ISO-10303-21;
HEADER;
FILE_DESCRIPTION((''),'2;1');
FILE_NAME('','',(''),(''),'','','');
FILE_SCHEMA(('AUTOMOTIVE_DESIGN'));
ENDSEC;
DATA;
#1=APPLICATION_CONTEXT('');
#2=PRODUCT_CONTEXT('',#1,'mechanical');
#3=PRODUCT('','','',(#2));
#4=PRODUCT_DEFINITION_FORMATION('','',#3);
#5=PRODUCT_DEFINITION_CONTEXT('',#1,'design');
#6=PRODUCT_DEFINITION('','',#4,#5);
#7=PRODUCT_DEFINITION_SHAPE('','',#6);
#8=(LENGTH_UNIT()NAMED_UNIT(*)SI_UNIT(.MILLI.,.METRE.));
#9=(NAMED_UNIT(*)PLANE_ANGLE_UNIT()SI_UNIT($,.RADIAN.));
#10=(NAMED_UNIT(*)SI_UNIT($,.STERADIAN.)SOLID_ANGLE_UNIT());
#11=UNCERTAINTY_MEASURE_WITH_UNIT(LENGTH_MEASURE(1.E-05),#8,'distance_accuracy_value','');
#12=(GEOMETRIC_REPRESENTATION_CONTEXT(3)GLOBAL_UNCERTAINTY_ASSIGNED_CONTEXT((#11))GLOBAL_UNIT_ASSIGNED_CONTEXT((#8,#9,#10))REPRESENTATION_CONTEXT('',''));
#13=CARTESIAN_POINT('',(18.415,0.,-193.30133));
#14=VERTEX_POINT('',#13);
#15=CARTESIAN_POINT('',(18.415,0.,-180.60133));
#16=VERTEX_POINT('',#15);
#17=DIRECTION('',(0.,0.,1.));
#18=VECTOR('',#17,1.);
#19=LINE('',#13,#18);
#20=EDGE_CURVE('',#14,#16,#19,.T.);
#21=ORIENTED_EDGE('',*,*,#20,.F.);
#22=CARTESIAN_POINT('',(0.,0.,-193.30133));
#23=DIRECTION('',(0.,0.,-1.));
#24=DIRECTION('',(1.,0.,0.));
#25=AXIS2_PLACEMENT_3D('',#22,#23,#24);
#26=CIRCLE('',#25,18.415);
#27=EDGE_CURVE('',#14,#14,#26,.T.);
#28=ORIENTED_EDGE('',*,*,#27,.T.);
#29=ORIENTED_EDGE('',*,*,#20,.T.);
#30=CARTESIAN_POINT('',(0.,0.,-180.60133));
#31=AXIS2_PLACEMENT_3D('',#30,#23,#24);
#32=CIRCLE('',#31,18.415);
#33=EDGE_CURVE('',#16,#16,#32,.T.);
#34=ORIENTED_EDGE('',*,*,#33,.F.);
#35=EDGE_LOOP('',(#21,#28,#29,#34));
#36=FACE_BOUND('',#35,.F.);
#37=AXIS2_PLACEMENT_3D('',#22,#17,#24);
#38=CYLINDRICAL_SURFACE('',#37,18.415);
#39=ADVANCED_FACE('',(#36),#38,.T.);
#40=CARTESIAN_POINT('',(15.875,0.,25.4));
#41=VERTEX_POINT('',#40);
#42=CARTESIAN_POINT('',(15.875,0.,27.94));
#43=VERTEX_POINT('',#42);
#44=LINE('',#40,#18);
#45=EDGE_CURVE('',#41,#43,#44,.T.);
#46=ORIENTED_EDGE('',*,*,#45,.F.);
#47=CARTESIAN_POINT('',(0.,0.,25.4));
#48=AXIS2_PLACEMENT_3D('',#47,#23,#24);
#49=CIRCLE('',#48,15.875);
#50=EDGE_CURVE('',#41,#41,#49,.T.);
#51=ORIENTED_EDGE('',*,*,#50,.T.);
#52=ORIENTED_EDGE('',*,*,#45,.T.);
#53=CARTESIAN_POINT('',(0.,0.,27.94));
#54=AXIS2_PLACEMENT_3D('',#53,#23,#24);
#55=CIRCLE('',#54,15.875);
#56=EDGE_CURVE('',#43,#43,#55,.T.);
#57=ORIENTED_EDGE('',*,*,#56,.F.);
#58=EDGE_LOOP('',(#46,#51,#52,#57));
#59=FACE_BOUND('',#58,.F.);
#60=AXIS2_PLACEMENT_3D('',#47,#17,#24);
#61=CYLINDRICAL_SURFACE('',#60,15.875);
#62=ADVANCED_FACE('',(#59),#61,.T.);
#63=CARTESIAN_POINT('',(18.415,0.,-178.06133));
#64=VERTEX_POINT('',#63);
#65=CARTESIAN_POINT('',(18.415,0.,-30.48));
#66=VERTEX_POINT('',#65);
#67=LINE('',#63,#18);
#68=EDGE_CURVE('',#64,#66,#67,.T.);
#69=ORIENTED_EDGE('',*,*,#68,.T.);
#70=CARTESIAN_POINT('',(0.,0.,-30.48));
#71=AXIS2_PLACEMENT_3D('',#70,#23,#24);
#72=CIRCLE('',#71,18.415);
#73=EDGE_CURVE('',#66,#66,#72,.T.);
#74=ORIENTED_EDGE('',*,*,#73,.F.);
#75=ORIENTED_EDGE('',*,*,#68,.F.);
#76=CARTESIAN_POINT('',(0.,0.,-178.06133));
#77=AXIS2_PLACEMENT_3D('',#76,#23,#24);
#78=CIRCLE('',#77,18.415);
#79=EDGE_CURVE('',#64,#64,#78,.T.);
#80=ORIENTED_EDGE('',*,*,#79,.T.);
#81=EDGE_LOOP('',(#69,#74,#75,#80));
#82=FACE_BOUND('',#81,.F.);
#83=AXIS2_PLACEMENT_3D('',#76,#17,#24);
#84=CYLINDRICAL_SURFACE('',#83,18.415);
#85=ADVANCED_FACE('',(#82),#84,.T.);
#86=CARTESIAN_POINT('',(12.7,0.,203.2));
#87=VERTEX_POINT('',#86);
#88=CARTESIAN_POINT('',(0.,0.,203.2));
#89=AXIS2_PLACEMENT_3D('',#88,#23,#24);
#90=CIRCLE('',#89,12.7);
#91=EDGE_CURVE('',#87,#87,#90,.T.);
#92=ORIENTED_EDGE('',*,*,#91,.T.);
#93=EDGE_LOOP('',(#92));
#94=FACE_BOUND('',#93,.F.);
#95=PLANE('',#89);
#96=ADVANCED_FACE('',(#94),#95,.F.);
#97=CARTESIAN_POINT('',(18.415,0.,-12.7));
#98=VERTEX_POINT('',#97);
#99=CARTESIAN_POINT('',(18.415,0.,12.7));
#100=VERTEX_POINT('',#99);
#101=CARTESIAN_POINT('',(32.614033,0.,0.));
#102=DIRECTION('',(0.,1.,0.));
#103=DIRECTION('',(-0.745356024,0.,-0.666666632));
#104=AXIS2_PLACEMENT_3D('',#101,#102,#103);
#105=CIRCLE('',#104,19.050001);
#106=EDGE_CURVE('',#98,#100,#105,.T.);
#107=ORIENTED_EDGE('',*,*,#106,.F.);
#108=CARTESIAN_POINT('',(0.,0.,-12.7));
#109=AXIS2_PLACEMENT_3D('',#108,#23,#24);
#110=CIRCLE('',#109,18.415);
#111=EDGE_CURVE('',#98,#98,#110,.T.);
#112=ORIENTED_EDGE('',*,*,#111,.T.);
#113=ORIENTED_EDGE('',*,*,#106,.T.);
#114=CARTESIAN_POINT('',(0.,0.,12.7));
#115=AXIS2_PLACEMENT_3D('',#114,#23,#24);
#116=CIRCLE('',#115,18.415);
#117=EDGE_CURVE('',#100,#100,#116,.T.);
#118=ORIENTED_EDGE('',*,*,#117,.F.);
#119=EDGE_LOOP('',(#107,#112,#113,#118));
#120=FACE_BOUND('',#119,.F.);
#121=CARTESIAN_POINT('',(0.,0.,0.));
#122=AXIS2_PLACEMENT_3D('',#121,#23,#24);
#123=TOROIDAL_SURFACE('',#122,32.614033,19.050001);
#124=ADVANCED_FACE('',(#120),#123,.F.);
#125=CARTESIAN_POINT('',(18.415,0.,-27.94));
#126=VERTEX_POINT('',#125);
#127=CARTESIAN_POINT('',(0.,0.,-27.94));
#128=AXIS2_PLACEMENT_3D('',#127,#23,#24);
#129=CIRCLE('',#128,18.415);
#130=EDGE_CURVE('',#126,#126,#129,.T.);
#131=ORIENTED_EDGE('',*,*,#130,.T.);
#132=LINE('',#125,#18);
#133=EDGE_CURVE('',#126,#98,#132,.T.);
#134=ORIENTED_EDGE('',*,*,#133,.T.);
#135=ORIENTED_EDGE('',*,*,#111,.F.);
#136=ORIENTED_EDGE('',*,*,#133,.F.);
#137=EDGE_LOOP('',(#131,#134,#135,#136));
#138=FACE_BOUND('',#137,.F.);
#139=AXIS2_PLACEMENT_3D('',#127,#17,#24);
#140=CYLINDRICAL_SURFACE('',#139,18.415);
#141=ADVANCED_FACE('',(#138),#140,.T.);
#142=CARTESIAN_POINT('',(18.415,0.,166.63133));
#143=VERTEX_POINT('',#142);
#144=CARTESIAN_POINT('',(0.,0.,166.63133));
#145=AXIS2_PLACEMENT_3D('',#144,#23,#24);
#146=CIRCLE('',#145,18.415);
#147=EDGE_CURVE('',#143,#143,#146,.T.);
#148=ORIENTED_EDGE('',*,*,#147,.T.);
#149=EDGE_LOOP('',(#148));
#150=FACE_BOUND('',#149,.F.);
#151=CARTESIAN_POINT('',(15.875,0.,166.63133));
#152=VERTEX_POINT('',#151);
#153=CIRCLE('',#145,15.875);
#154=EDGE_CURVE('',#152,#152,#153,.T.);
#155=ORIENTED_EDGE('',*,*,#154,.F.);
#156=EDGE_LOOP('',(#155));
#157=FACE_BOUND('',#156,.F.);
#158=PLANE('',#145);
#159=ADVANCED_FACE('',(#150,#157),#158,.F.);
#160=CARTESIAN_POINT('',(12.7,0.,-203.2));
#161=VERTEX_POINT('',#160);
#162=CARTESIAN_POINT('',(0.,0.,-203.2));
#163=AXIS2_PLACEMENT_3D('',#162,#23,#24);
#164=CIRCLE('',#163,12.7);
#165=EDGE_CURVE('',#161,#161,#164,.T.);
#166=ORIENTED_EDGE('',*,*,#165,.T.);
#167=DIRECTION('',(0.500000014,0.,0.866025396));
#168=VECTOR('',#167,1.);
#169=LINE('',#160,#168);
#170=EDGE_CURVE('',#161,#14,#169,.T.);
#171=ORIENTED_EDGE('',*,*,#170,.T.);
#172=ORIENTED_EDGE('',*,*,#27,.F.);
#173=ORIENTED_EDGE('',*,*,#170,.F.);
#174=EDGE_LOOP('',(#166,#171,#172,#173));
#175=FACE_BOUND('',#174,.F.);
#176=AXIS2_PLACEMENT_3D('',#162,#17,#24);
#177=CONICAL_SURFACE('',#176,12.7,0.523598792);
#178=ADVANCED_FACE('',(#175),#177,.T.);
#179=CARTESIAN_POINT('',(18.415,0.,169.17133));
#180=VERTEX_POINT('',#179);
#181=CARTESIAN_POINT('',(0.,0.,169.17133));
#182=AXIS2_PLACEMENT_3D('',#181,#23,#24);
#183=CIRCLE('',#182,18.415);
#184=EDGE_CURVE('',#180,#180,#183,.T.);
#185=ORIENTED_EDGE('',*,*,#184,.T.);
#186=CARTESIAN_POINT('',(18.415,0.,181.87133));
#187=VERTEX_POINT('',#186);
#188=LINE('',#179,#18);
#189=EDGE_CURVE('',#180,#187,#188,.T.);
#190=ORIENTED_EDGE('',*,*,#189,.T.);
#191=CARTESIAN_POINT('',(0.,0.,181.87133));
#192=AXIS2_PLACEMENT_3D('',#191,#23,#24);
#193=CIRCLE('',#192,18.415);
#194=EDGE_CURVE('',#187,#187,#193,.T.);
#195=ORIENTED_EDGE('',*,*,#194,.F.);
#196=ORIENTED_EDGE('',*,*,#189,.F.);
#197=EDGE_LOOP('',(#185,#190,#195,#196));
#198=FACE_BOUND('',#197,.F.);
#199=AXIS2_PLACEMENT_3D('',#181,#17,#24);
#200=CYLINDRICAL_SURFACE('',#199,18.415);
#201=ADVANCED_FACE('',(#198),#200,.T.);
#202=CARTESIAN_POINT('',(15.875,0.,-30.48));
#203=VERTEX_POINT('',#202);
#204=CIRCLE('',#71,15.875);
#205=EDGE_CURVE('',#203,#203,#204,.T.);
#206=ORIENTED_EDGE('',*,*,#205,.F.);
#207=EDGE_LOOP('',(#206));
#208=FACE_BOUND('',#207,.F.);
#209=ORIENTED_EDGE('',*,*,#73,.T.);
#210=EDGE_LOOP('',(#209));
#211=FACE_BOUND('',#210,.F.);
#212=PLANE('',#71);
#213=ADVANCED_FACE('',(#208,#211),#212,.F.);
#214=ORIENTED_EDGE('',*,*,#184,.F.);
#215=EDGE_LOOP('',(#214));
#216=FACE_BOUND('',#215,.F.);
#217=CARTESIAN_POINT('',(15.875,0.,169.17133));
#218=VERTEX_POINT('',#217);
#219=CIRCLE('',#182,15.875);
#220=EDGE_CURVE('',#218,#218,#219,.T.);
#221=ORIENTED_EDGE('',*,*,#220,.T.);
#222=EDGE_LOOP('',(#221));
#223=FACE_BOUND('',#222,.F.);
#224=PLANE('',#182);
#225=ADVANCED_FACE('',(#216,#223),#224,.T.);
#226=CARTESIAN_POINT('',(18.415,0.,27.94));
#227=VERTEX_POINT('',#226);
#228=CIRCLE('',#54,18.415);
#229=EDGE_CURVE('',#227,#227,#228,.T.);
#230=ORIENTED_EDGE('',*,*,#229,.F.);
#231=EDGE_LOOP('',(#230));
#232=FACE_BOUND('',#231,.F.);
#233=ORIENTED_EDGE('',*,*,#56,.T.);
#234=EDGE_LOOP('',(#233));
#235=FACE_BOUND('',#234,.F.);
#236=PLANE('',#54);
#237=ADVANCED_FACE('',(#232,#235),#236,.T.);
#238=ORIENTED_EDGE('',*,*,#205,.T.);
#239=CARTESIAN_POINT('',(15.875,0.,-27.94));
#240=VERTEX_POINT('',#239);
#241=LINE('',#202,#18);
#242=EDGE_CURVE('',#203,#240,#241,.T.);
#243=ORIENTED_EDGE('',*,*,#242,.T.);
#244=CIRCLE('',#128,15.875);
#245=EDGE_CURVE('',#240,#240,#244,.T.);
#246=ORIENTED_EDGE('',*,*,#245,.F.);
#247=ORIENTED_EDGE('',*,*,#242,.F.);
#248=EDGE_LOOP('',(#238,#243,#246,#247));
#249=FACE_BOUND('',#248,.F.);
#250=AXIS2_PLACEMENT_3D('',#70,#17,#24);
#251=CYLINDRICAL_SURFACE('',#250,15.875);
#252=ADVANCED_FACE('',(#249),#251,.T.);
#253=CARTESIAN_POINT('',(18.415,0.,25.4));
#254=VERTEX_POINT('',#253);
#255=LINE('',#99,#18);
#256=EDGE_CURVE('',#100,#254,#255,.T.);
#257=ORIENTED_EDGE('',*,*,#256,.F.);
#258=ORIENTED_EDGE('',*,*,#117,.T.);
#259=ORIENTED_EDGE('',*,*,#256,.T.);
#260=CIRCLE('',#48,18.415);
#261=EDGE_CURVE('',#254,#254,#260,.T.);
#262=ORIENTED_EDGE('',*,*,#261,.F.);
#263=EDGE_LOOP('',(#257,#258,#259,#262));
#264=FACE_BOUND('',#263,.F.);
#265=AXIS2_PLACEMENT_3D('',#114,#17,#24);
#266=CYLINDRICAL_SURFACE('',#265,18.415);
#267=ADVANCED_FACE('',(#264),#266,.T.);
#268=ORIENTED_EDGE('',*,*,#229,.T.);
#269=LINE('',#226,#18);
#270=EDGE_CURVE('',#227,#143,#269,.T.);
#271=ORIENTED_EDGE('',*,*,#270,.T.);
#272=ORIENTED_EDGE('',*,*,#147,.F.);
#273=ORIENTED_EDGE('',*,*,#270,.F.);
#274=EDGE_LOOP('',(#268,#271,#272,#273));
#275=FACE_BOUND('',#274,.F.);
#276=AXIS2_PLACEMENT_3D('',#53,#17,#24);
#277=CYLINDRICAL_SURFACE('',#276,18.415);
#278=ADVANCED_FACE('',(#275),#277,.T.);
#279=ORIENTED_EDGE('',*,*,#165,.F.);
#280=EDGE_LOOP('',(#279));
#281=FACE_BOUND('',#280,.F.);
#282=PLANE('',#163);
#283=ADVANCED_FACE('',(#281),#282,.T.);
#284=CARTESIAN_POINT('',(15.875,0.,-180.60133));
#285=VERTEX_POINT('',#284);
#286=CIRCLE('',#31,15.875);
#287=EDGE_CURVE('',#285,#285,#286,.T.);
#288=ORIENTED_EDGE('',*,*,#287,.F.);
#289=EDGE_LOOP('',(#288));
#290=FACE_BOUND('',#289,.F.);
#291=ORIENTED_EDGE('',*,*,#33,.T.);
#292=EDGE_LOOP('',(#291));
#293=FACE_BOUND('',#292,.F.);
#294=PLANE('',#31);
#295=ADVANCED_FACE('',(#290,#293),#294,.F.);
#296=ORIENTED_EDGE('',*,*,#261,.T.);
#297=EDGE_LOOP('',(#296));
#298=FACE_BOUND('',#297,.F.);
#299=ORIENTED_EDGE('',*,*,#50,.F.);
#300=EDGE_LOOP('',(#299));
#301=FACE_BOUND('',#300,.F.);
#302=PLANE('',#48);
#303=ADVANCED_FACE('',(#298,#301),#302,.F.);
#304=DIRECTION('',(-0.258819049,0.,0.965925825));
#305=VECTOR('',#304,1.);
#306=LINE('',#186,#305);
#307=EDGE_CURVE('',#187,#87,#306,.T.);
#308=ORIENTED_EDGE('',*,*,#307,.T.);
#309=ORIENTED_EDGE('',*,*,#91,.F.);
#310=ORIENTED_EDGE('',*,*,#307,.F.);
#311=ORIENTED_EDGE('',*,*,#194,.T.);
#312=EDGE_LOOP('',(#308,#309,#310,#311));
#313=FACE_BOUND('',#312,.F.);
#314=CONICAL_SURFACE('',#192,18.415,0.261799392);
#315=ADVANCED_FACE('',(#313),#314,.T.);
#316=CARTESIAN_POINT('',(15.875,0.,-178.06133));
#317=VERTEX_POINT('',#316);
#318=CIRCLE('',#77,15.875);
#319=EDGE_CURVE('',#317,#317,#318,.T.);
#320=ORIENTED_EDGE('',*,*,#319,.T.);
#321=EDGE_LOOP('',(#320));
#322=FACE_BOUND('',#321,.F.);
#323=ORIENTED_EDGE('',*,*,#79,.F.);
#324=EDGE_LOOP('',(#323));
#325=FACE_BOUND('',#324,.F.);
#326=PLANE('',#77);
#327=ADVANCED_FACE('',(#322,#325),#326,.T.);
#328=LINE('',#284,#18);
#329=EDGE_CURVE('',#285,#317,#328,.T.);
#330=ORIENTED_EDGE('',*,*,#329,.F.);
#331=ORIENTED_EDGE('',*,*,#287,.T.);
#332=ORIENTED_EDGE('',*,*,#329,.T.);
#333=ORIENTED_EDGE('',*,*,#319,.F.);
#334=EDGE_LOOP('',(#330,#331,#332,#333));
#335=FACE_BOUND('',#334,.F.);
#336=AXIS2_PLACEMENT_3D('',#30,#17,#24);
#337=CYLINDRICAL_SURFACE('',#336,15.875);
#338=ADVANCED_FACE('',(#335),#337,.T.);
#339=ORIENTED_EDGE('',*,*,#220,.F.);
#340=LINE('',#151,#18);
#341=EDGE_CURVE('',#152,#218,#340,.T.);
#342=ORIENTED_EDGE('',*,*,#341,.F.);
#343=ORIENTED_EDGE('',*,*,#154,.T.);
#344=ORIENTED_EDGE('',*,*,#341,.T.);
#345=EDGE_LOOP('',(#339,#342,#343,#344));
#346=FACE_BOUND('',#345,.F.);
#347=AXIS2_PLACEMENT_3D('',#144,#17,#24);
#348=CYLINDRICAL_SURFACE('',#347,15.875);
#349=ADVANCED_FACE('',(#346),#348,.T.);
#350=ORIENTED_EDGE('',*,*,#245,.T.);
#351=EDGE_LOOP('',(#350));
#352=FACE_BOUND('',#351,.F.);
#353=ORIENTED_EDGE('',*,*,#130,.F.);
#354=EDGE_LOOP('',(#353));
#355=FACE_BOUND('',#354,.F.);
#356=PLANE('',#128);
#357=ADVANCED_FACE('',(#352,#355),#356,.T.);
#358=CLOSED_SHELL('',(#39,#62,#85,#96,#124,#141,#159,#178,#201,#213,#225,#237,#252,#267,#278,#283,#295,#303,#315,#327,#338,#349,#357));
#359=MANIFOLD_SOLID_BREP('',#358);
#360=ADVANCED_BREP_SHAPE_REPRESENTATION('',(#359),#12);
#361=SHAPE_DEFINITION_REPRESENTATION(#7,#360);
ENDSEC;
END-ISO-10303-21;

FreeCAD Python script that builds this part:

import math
import FreeCAD as App
import Part
import Sketcher

V = App.Vector
Q = App.Units.Quantity

doc = App.newDocument("Part")
body = doc.addObject("PartDesign::Body", "Body")

# Sketch on XZ plane
sketch1 = doc.addObject("Sketcher::SketchObject", "Sketch")
body.addObject(sketch1)
sketch1.AttachmentSupport = (doc.XZ_Plane, [""])
sketch1.MapMode = "FlatFace"
sketch1.addGeometry(Part.LineSegment(V(12.7, 203.2, 0), V(0, 203.2, 0)), False)
sketch1.addGeometry(Part.LineSegment(V(0, 203.2, 0), V(0, -203.2, 0)), False)
sketch1.addGeometry(Part.LineSegment(V(0, -203.2, 0), V(12.7, -203.2, 0)), False)
sketch1.addGeometry(Part.LineSegment(V(12.7, -203.2, 0), V(18.4, -193.3, 0)), False)
sketch1.addGeometry(Part.LineSegment(V(18.4, -193.3, 0), V(18.4, -180.6, 0)), False)
sketch1.addGeometry(Part.LineSegment(V(18.4, -180.6, 0), V(15.9, -180.6, 0)), False)
sketch1.addGeometry(Part.LineSegment(V(15.9, -180.6, 0), V(15.9, -178.1, 0)), False)
sketch1.addGeometry(Part.LineSegment(V(15.9, -178.1, 0), V(18.4, -178.1, 0)), False)
sketch1.addGeometry(Part.LineSegment(V(18.4, -178.1, 0), V(18.4, -30.5, 0)), False)
sketch1.addGeometry(Part.LineSegment(V(18.4, -30.5, 0), V(15.9, -30.5, 0)), False)
sketch1.addGeometry(Part.LineSegment(V(15.9, -30.5, 0), V(15.9, -27.9, 0)), False)
sketch1.addGeometry(Part.LineSegment(V(15.9, -27.9, 0), V(18.4, -27.9, 0)), False)
sketch1.addGeometry(Part.LineSegment(V(18.4, -27.9, 0), V(18.4, -12.7, 0)), False)
sketch1.addGeometry(Part.ArcOfCircle(Part.Circle(V(32.6, 0, 0), V(0, 0, 1), 19.1), math.radians(138), math.radians(222)), False)
sketch1.addGeometry(Part.LineSegment(V(18.4, 12.7, 0), V(18.4, 25.4, 0)), False)
sketch1.addGeometry(Part.LineSegment(V(18.4, 25.4, 0), V(15.9, 25.4, 0)), False)
sketch1.addGeometry(Part.LineSegment(V(15.9, 25.4, 0), V(15.9, 27.9, 0)), False)
sketch1.addGeometry(Part.LineSegment(V(15.9, 27.9, 0), V(18.4, 27.9, 0)), False)
sketch1.addGeometry(Part.LineSegment(V(18.4, 27.9, 0), V(18.4, 166.6, 0)), False)
sketch1.addGeometry(Part.LineSegment(V(18.4, 166.6, 0), V(15.9, 166.6, 0)), False)
sketch1.addGeometry(Part.LineSegment(V(15.9, 166.6, 0), V(15.9, 169.2, 0)), False)
sketch1.addGeometry(Part.LineSegment(V(15.9, 169.2, 0), V(18.4, 169.2, 0)), False)
sketch1.addGeometry(Part.LineSegment(V(18.4, 169.2, 0), V(18.4, 181.9, 0)), False)
sketch1.addGeometry(Part.LineSegment(V(18.4, 181.9, 0), V(12.7, 203.2, 0)), False)
sketch1.addConstraint(Sketcher.Constraint("Coincident", 0, 2, 1, 1))
sketch1.addConstraint(Sketcher.Constraint("Coincident", 1, 2, 2, 1))
sketch1.addConstraint(Sketcher.Constraint("Coincident", 2, 2, 3, 1))
sketch1.addConstraint(Sketcher.Constraint("Coincident", 3, 2, 4, 1))
sketch1.addConstraint(Sketcher.Constraint("Coincident", 4, 2, 5, 1))
sketch1.addConstraint(Sketcher.Constraint("Coincident", 5, 2, 6, 1))
sketch1.addConstraint(Sketcher.Constraint("Coincident", 6, 2, 7, 1))
sketch1.addConstraint(Sketcher.Constraint("Coincident", 7, 2, 8, 1))
sketch1.addConstraint(Sketcher.Constraint("Coincident", 8, 2, 9, 1))
sketch1.addConstraint(Sketcher.Constraint("Coincident", 9, 2, 10, 1))
sketch1.addConstraint(Sketcher.Constraint("Coincident", 10, 2, 11, 1))
sketch1.addConstraint(Sketcher.Constraint("Coincident", 11, 2, 12, 1))
sketch1.addConstraint(Sketcher.Constraint("Coincident", 12, 2, 13, 2))
sketch1.addConstraint(Sketcher.Constraint("Coincident", 13, 1, 14, 1))
sketch1.addConstraint(Sketcher.Constraint("Coincident", 14, 2, 15, 1))
sketch1.addConstraint(Sketcher.Constraint("Coincident", 15, 2, 16, 1))
sketch1.addConstraint(Sketcher.Constraint("Coincident", 16, 2, 17, 1))
sketch1.addConstraint(Sketcher.Constraint("Coincident", 17, 2, 18, 1))
sketch1.addConstraint(Sketcher.Constraint("Coincident", 18, 2, 19, 1))
sketch1.addConstraint(Sketcher.Constraint("Coincident", 19, 2, 20, 1))
sketch1.addConstraint(Sketcher.Constraint("Coincident", 20, 2, 21, 1))
sketch1.addConstraint(Sketcher.Constraint("Coincident", 21, 2, 22, 1))
sketch1.addConstraint(Sketcher.Constraint("Coincident", 22, 2, 23, 1))
sketch1.addConstraint(Sketcher.Constraint("Coincident", 23, 2, 0, 1))
sketch1.addConstraint(Sketcher.Constraint("Horizontal", 0))
sketch1.addConstraint(Sketcher.Constraint("Vertical", 1))
sketch1.addConstraint(Sketcher.Constraint("Horizontal", 2))
sketch1.addConstraint(Sketcher.Constraint("Vertical", 4))
sketch1.addConstraint(Sketcher.Constraint("Horizontal", 5))
sketch1.addConstraint(Sketcher.Constraint("Vertical", 6))
sketch1.addConstraint(Sketcher.Constraint("Horizontal", 7))
sketch1.addConstraint(Sketcher.Constraint("Vertical", 8))
sketch1.addConstraint(Sketcher.Constraint("Horizontal", 9))
sketch1.addConstraint(Sketcher.Constraint("Vertical", 10))
sketch1.addConstraint(Sketcher.Constraint("Horizontal", 11))
sketch1.addConstraint(Sketcher.Constraint("Vertical", 12))
sketch1.addConstraint(Sketcher.Constraint("Vertical", 14))
sketch1.addConstraint(Sketcher.Constraint("Horizontal", 15))
sketch1.addConstraint(Sketcher.Constraint("Vertical", 16))
sketch1.addConstraint(Sketcher.Constraint("Horizontal", 17))
sketch1.addConstraint(Sketcher.Constraint("Vertical", 18))
sketch1.addConstraint(Sketcher.Constraint("Horizontal", 19))
sketch1.addConstraint(Sketcher.Constraint("Vertical", 20))
sketch1.addConstraint(Sketcher.Constraint("Horizontal", 21))
sketch1.addConstraint(Sketcher.Constraint("Vertical", 22))
sketch1.addConstraint(Sketcher.Constraint("Symmetric", 0, 2, 1, 2, -1, 1))
sketch1.addConstraint(Sketcher.Constraint("Symmetric", 12, 2, 13, 1, -1))
sketch1.addConstraint(Sketcher.Constraint("Symmetric", 10, 2, 16, 2, -1))
sketch1.addConstraint(Sketcher.Constraint("Vertical", 4, 2, 7, 2))
sketch1.addConstraint(Sketcher.Constraint("Vertical", 6, 2, 9, 2))
sketch1.addConstraint(Sketcher.Constraint("Vertical", 8, 2, 11, 2))
sketch1.addConstraint(Sketcher.Constraint("Vertical", 14, 2, 17, 2))
sketch1.addConstraint(Sketcher.Constraint("Vertical", 16, 2, 19, 2))
sketch1.addConstraint(Sketcher.Constraint("Vertical", 18, 2, 21, 2))
sketch1.addConstraint(Sketcher.Constraint("Vertical", 2, 2, 23, 2))
sketch1.addConstraint(Sketcher.Constraint("Equal", 2, 4))
sketch1.addConstraint(Sketcher.Constraint("Equal", 21, 6))
sketch1.addConstraint(Sketcher.Constraint("Equal", 6, 10))
sketch1.addConstraint(Sketcher.Constraint("Equal", 4, 14))
sketch1.addConstraint(Sketcher.Constraint("Equal", 10, 16))
sketch1.addConstraint(Sketcher.Constraint("Equal", 16, 20))
sketch1.addConstraint(Sketcher.Constraint("Equal", 14, 22))
sketch1.addConstraint(Sketcher.Constraint("DistanceY", 1, 2, 1, 1, Q("16 in")))
sketch1.addConstraint(Sketcher.Constraint("Radius", 13, Q("0.75 in")))
sketch1.addConstraint(Sketcher.Constraint("DistanceX", 0, 2, 0, 1, Q("0.5 in")))
sketch1.addConstraint(Sketcher.Constraint("DistanceX", 5, 2, 5, 1, Q("0.1 in")))
sketch1.addConstraint(Sketcher.Constraint("DistanceY", -1, 1, 14, 2, Q("1 in")))
sketch1.addConstraint(Sketcher.Constraint("Angle", 3, Q("59.999999 deg")))
sketch1.addConstraint(Sketcher.Constraint("Angle", 23, Q("105 deg")))
sketch1.addConstraint(Sketcher.Constraint("Distance", 3, Q("0.45 in")))
revolution = doc.addObject("PartDesign::Revolution", "Revolution")
body.addObject(revolution)
revolution.Profile = sketch1
revolution.ReferenceAxis = (sketch1, ["V_Axis"])
revolution.Angle = 360

doc.recompute()
